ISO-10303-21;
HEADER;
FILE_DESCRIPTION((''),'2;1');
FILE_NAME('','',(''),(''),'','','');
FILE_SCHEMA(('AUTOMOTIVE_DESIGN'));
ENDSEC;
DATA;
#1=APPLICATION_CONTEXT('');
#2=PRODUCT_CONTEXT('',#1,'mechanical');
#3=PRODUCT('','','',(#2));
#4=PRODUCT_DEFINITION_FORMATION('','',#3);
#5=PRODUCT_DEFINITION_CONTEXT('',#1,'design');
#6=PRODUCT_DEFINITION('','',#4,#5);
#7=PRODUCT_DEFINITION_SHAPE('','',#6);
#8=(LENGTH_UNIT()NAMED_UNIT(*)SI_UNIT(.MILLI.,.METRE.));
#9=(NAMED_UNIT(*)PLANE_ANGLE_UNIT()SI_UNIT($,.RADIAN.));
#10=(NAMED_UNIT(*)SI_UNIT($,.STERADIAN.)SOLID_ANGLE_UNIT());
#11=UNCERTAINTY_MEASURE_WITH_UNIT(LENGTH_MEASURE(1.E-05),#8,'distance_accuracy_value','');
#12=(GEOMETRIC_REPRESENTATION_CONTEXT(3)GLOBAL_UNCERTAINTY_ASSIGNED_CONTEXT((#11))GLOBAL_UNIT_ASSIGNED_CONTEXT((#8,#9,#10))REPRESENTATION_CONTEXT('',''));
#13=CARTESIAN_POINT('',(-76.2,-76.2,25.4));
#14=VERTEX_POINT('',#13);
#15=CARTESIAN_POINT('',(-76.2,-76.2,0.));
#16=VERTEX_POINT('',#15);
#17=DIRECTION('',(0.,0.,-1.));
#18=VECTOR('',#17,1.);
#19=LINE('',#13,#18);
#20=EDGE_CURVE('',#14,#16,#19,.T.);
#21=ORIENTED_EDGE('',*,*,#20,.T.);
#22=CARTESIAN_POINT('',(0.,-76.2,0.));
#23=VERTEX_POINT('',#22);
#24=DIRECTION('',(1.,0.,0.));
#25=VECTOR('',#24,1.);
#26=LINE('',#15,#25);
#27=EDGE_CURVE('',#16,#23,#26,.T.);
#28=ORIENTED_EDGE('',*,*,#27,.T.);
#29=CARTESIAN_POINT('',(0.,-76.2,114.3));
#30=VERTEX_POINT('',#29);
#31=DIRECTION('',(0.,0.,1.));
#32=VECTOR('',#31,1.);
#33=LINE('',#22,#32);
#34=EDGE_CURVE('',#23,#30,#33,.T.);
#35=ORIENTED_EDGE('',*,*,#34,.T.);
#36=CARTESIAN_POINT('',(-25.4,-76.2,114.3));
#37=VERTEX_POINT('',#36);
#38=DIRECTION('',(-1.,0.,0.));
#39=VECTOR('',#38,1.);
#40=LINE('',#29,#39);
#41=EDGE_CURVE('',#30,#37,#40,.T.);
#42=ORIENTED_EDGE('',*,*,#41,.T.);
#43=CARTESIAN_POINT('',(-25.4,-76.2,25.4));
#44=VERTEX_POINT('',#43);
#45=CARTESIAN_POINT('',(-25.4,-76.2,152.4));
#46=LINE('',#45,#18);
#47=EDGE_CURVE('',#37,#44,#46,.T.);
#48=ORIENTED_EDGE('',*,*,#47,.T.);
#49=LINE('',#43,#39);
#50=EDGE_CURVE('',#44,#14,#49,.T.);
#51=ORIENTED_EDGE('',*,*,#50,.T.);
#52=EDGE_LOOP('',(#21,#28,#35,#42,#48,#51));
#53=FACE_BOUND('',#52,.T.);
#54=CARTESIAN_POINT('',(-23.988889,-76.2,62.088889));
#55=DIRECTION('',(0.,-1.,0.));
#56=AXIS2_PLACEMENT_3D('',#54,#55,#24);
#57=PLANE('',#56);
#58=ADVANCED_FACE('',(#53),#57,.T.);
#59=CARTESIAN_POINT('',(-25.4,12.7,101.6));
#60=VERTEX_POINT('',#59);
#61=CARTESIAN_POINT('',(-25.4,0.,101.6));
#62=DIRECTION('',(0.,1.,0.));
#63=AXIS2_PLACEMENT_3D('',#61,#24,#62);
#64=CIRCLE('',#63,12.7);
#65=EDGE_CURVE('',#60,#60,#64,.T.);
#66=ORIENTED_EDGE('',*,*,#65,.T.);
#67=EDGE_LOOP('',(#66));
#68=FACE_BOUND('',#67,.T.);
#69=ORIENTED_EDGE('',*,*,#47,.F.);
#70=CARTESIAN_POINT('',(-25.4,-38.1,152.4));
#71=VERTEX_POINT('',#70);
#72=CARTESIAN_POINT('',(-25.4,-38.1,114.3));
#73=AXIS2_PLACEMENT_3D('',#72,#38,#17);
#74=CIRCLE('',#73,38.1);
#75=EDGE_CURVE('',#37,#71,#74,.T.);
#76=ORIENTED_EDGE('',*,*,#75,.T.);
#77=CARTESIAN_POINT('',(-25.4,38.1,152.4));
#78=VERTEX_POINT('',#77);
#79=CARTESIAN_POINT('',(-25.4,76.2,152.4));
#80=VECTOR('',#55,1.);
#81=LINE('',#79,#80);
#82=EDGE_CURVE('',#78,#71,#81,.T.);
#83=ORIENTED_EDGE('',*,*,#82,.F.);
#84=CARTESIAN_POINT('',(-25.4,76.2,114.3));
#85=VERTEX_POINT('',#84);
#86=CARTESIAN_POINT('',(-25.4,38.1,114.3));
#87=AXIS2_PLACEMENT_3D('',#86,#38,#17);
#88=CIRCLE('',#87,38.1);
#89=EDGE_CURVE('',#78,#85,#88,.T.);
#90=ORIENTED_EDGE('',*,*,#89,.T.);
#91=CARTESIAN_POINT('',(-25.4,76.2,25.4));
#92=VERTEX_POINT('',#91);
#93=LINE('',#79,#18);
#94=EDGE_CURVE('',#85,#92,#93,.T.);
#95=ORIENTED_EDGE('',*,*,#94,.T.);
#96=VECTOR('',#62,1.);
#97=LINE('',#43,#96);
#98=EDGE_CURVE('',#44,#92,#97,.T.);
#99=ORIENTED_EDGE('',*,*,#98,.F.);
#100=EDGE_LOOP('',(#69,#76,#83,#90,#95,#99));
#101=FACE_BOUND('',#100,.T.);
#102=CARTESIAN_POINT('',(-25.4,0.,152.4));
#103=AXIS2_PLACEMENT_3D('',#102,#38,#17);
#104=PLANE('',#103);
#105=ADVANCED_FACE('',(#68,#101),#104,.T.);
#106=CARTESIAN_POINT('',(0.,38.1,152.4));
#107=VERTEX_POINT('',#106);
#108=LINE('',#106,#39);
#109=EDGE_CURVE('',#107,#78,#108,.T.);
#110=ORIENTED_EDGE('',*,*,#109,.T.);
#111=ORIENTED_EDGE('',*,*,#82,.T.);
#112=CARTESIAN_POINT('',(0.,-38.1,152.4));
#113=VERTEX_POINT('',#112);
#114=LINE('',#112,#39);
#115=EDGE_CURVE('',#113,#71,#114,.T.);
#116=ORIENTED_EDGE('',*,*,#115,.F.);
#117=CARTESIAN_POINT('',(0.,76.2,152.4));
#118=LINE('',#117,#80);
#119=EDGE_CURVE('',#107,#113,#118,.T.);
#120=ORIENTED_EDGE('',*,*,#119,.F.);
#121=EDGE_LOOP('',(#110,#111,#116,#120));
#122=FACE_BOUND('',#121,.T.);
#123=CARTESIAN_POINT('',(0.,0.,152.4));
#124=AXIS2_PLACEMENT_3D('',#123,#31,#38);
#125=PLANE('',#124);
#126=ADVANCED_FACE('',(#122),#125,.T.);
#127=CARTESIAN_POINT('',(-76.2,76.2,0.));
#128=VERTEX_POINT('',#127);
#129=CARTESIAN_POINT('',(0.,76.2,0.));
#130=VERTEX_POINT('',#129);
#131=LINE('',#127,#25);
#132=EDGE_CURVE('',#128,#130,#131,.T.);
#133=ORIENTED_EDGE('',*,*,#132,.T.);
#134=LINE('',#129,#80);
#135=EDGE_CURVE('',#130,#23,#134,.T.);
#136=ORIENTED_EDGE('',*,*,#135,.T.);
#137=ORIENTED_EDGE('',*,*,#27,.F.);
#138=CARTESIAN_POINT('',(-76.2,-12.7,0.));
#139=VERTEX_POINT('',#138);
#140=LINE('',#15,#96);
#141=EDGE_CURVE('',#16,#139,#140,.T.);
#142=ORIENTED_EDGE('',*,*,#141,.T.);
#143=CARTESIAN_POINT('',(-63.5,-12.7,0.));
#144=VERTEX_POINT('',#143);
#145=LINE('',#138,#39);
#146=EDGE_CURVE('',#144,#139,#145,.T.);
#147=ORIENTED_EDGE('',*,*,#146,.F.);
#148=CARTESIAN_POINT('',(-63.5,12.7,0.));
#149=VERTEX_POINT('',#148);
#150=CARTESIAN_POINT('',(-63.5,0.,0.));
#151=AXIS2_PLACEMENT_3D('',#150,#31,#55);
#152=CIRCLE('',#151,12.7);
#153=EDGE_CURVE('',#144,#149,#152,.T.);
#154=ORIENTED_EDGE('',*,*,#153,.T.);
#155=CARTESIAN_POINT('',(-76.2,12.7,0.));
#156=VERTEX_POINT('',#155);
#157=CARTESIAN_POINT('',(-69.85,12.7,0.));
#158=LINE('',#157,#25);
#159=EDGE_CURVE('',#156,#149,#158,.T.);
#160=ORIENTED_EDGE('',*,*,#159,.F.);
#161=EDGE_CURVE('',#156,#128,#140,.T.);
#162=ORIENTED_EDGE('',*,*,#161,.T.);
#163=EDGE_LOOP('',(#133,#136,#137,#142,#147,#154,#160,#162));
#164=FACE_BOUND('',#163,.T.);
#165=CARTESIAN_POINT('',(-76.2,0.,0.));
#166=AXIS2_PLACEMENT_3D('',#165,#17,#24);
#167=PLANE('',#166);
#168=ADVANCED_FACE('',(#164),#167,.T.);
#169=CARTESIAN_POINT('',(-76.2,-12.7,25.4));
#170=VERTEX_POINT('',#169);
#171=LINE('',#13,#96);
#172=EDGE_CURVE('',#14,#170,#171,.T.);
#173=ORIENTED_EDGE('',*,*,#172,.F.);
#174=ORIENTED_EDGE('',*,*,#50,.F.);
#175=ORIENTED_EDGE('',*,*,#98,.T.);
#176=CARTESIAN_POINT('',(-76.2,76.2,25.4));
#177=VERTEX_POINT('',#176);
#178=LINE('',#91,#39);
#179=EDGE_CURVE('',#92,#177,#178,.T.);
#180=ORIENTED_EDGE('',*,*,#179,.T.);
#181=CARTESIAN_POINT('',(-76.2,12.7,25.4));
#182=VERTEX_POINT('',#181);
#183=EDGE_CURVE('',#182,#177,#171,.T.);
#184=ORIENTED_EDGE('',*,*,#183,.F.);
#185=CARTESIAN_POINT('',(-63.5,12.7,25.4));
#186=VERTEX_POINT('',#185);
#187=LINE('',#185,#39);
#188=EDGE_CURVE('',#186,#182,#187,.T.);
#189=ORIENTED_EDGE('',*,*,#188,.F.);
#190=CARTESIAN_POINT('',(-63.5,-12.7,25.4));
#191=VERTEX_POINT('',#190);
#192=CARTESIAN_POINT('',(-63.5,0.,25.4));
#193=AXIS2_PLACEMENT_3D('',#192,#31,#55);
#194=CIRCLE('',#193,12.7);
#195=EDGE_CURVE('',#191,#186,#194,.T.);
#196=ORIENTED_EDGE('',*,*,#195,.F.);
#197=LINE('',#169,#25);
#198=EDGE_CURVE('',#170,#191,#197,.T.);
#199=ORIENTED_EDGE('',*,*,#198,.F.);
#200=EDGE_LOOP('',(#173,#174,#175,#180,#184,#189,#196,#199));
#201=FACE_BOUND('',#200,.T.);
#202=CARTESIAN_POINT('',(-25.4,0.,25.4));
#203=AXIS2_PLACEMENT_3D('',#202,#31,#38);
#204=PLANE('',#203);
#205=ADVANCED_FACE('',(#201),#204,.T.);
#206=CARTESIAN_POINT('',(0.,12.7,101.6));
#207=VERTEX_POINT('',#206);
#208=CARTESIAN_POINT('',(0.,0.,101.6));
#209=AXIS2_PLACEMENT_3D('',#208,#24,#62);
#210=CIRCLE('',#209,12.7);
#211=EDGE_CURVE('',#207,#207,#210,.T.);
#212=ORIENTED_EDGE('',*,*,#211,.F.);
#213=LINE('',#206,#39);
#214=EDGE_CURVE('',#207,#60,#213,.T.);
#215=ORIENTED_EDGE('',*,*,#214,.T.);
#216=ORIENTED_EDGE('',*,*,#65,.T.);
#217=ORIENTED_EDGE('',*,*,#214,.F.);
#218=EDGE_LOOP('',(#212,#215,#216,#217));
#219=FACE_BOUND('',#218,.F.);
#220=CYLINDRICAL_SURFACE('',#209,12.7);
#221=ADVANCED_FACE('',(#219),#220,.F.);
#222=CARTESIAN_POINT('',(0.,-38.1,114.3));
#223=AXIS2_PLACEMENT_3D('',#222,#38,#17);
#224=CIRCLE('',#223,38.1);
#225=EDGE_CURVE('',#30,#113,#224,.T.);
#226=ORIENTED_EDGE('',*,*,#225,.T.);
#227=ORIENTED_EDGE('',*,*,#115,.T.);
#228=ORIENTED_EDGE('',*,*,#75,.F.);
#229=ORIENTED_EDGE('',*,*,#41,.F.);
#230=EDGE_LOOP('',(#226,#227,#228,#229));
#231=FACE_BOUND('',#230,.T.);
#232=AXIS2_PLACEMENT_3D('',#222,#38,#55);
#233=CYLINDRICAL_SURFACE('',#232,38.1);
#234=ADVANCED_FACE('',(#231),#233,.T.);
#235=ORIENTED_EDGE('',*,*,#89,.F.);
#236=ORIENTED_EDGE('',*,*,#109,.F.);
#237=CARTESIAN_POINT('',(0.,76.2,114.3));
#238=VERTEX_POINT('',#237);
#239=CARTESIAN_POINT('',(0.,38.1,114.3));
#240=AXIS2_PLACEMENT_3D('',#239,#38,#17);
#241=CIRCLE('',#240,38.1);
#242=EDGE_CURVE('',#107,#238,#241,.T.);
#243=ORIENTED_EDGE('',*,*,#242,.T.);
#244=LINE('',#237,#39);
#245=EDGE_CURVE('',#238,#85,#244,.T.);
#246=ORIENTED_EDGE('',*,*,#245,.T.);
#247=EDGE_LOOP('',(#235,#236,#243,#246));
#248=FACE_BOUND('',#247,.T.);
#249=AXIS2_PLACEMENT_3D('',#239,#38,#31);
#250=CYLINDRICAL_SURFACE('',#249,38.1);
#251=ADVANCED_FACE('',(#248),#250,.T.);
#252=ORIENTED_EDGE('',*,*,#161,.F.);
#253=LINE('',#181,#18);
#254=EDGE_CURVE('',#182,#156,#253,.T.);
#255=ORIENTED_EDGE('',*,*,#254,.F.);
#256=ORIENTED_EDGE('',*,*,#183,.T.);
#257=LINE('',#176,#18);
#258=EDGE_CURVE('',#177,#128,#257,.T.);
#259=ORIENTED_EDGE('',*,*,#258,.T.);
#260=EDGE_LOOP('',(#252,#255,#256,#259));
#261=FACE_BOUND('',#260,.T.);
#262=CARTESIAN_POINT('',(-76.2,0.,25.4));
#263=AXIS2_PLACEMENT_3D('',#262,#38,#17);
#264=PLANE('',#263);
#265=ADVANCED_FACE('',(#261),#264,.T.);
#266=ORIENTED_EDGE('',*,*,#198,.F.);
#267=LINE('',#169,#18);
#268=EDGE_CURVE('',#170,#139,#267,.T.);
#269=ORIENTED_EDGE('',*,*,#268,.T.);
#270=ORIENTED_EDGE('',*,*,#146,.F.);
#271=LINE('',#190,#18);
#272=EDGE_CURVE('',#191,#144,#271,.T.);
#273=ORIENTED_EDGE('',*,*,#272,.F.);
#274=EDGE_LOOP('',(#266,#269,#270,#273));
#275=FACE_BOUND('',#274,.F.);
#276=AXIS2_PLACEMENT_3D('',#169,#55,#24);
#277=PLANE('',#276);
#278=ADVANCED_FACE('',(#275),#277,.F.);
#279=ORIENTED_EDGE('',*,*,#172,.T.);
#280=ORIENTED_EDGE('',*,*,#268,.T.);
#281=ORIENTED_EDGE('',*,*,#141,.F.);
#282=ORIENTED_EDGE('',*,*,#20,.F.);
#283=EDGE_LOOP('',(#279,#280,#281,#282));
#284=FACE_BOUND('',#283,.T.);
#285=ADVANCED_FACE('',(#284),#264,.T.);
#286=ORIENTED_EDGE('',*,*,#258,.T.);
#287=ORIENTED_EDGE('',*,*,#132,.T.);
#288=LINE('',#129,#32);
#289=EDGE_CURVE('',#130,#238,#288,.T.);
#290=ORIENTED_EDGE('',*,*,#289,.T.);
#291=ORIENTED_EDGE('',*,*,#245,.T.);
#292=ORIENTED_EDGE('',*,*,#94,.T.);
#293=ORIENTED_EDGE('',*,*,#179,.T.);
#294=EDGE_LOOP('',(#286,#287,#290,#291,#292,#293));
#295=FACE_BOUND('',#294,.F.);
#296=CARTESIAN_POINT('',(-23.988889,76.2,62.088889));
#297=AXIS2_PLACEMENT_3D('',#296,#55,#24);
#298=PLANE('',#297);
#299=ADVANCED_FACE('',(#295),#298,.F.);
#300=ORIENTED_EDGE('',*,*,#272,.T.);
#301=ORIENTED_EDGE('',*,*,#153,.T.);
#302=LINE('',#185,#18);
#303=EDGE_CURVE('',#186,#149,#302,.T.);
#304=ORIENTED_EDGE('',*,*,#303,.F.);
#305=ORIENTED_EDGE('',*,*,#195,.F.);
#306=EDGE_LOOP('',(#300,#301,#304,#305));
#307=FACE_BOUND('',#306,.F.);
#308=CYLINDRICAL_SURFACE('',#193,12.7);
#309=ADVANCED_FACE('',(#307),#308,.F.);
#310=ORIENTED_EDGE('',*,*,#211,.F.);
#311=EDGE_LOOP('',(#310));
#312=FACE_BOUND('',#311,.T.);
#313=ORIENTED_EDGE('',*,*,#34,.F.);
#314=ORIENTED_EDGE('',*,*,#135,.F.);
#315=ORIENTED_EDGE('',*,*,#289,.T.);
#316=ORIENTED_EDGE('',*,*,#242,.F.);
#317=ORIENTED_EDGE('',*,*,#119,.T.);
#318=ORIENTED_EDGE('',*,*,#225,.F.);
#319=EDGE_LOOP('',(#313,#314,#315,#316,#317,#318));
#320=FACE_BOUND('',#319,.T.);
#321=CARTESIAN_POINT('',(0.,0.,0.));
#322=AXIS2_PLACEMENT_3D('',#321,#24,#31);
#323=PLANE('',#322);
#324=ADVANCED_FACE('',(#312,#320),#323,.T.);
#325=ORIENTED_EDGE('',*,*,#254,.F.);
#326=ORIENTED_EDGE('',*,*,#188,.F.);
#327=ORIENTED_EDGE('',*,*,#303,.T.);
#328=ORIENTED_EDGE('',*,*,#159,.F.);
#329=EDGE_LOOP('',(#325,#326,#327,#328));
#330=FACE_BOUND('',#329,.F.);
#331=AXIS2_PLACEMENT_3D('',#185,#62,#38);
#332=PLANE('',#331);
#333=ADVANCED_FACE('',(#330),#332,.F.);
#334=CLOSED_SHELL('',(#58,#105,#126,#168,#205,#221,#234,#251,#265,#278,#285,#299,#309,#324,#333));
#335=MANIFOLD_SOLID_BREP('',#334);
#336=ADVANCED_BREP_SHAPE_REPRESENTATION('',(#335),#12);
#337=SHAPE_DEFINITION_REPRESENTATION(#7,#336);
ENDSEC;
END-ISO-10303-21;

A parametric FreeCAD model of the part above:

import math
import FreeCAD as App
import Part
import Sketcher
from FreeCAD import Vector
Q = App.Units.Quantity


def edges_at(feature, points):
    """Names of the edges that pass closest to the given points."""
    edges = feature.Shape.Edges
    near = lambda p: min(range(len(edges)), key=lambda i: edges[i].distToShape(Part.Vertex(*p))[0])
    return sorted({f"Edge{near(p) + 1}" for p in points})


def add_polygon(sketch, points):
    """Adds a closed chain of lines whose ends are joined by coincident constraints."""
    first, n = sketch.GeometryCount, len(points)
    for a, b in zip(points, points[1:] + points[:1]):
        sketch.addGeometry(Part.LineSegment(App.Vector(*a, 0), App.Vector(*b, 0)), False)
    for i in range(n):
        sketch.addConstraint(Sketcher.Constraint("Coincident", first + i, 2, first + (i + 1) % n, 1))

doc = App.newDocument("Part")
body = doc.addObject("PartDesign::Body", "Body")

sketch1 = body.newObject("Sketcher::SketchObject", "Sketch")
sketch1.AttachmentSupport = (doc.getObject("XZ_Plane"), [""])
sketch1.MapMode = "FlatFace"
add_polygon(sketch1, [(-76.2, 0), (0, 0), (0, 152.4), (-25.4, 152.4), (-25.4, 25.4), (-76.2, 25.4)])
sketch1.addConstraint([
    Sketcher.Constraint("Horizontal", 0),
    Sketcher.Constraint("Vertical", 1),
    Sketcher.Constraint("Horizontal", 2),
    Sketcher.Constraint("Vertical", 3),
    Sketcher.Constraint("Horizontal", 4),
    Sketcher.Constraint("Vertical", 5),
    Sketcher.Constraint("Coincident", 0, 2, -1, 1),
    Sketcher.Constraint("Equal", 2, 5),
    Sketcher.Constraint("DistanceX", 0, 1, 0, 2, Q("3 in")),
    Sketcher.Constraint("DistanceX", 2, 2, 2, 1, Q("1 in")),
    Sketcher.Constraint("DistanceY", 1, 1, 1, 2, Q("6 in")),
])
pad1 = body.newObject("PartDesign::Pad", "Pad")
pad1.Profile = sketch1
pad1.Type = "TwoLengths"
pad1.Length = Q("3 in")
pad1.Length2 = Q("3 in")

sketch2 = body.newObject("Sketcher::SketchObject", "Sketch001")
sketch2.AttachmentSupport = (doc.getObject("YZ_Plane"), [""])
sketch2.MapMode = "FlatFace"
sketch2.addGeometry(Part.Circle(Vector(0, 101.6, 0), Vector(0, 0, 1), 12.7), False)
sketch2.addConstraint([
    Sketcher.Constraint("PointOnObject", 0, 3, -2),
    Sketcher.Constraint("Diameter", 0, Q("1 in")),
    Sketcher.Constraint("DistanceY", -1, 1, 0, 3, Q("4 in")),
])
pocket1 = body.newObject("PartDesign::Pocket", "Pocket")
pocket1.Profile = sketch2
pocket1.Type = "ThroughAll"

sketch3 = body.newObject("Sketcher::SketchObject", "Sketch002")
sketch3.AttachmentSupport = (doc.getObject("XY_Plane"), [""])
sketch3.MapMode = "FlatFace"
sketch3.AttachmentOffset = App.Placement(Vector(0, 0, 1 * 25.4), App.Rotation())
sketch3.addGeometry([
    Part.LineSegment(Vector(-63.5, 12.7, 0), Vector(-76.2, 12.7, 0)),
    Part.LineSegment(Vector(-76.2, 12.7, 0), Vector(-76.2, -12.7, 0)),
    Part.LineSegment(Vector(-76.2, -12.7, 0), Vector(-63.5, -12.7, 0)),
    Part.ArcOfCircle(Part.Circle(Vector(-63.5, 0, 0), Vector(0, 0, 1), 12.7), math.radians(-90), math.radians(90)),
], False)
sketch3.addConstraint([
    Sketcher.Constraint("Coincident", 0, 2, 1, 1),
    Sketcher.Constraint("Coincident", 1, 2, 2, 1),
    Sketcher.Constraint("Tangent", 2, 2, 3, 1),
    Sketcher.Constraint("Tangent", 3, 2, 0, 1),
    Sketcher.Constraint("Horizontal", 0),
    Sketcher.Constraint("Vertical", 1),
    Sketcher.Constraint("Horizontal", 2),
    Sketcher.Constraint("PointOnObject", 3, 3, -1),
    Sketcher.Constraint("Radius", 3, Q("0.5 in")),
    Sketcher.Constraint("DistanceX", 0, 2, 0, 1, Q("0.5 in")),
    Sketcher.Constraint("DistanceX", 0, 2, -1, 1, Q("3 in")),
])
pocket2 = body.newObject("PartDesign::Pocket", "Pocket001")
pocket2.Profile = sketch3
pocket2.Type = "ThroughAll"
doc.recompute()

fillet = body.newObject("PartDesign::Fillet", "Fillet")
fillet.Base = (pocket2, edges_at(pocket2, [(-12.7, -76.2, 152.4)]))
fillet.Radius = Q("1.5 in")
doc.recompute()

fillet2 = body.newObject("PartDesign::Fillet", "Fillet001")
fillet2.Base = (fillet, edges_at(fillet, [(-12.7, 76.2, 152.4)]))
fillet2.Radius = Q("1.5 in")

doc.recompute()
